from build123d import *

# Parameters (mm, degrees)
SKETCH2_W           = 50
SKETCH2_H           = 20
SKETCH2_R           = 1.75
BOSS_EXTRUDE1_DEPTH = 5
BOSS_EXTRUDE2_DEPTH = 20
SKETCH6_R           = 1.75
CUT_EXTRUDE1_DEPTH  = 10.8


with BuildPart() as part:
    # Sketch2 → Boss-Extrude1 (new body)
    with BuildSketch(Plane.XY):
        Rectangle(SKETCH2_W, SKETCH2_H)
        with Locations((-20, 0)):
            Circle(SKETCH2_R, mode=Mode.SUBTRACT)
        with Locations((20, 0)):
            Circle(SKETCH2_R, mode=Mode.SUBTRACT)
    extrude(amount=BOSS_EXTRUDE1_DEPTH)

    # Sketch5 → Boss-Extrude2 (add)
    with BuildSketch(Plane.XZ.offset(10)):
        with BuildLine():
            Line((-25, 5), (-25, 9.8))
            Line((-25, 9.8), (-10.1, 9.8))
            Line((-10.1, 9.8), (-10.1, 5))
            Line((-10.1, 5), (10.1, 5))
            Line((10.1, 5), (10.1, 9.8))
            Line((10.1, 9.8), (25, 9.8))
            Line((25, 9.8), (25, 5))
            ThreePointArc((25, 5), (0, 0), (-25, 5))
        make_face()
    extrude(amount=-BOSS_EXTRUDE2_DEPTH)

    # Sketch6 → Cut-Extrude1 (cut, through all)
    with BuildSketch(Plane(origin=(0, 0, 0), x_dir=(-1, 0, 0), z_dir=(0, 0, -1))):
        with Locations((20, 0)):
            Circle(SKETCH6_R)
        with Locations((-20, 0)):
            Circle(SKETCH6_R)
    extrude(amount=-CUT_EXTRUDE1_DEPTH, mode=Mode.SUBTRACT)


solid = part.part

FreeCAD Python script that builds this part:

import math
import FreeCAD as App
import Part
import Sketcher


def add_polygon(sketch, points):
    """Adds a closed chain of lines whose ends are joined by coincident constraints."""
    first, n = sketch.GeometryCount, len(points)
    for a, b in zip(points, points[1:] + points[:1]):
        sketch.addGeometry(Part.LineSegment(App.Vector(*a, 0), App.Vector(*b, 0)), False)
    for i in range(n):
        sketch.addConstraint(Sketcher.Constraint("Coincident", first + i, 2, first + (i + 1) % n, 1))

doc = App.newDocument("Part")
body = doc.addObject("PartDesign::Body", "Body")

# Sketch on XY plane
sketch1 = doc.addObject("Sketcher::SketchObject", "Sketch")
body.addObject(sketch1)
sketch1.AttachmentSupport = (doc.XY_Plane, [""])
sketch1.MapMode = "FlatFace"
add_polygon(sketch1, [(-25, 10), (-25, -10), (25, -10), (25, 10)])  # lines 0-3
sketch1.addGeometry(Part.Circle(App.Vector(-20, 0, 0), App.Vector(0, 0, 1), 1.8), False)  # 4
sketch1.addGeometry(Part.Circle(App.Vector(20, 0, 0), App.Vector(0, 0, 1), 1.8), False)  # 5
sketch1.addConstraint([
    Sketcher.Constraint("Vertical", 0),
    Sketcher.Constraint("Horizontal", 1),
    Sketcher.Constraint("Vertical", 2),
    Sketcher.Constraint("Horizontal", 3),
    Sketcher.Constraint("Equal", 4, 5),
    Sketcher.Constraint("Symmetric", 4, 3, 5, 3, -1, 1),
    Sketcher.Constraint("Symmetric", 0, 2, 2, 2, -1, 1),
    Sketcher.Constraint("PointOnObject", 4, 3, -1),
    Sketcher.Constraint("Diameter", 4, 3.5),
    Sketcher.Constraint("DistanceX", 1, 1, 1, 2, 50.0),
    Sketcher.Constraint("DistanceY", 0, 2, 0, 1, 20.0),
    Sketcher.Constraint("DistanceX", 4, 3, -1, 1, 20.0),
])
pad1 = doc.addObject("PartDesign::Pad", "Pad")
body.addObject(pad1)
pad1.Profile = sketch1
pad1.Length = 5

# Sketch on XZ plane
sketch2 = doc.addObject("Sketcher::SketchObject", "Sketch001")
body.addObject(sketch2)
sketch2.AttachmentSupport = (doc.XZ_Plane, [""])
sketch2.MapMode = "FlatFace"
sketch2.AttachmentOffset = App.Placement(App.Vector(0, 0, 10), App.Rotation())
sketch2.addGeometry([
    Part.LineSegment(App.Vector(-25, 9.8, 0), App.Vector(-25, 5, 0)),  # 0
    Part.ArcOfCircle(Part.Circle(App.Vector(0, 65, 0), App.Vector(0, 0, 1), 65), math.radians(-113), math.radians(-67)),  # 1
    Part.LineSegment(App.Vector(25, 5, 0), App.Vector(25, 9.8, 0)),  # 2
    Part.LineSegment(App.Vector(25, 9.8, 0), App.Vector(10.1, 9.8, 0)),  # 3
    Part.LineSegment(App.Vector(10.1, 9.8, 0), App.Vector(10.1, 5, 0)),  # 4
    Part.LineSegment(App.Vector(10.1, 5, 0), App.Vector(-10.1, 5, 0)),  # 5
    Part.LineSegment(App.Vector(-10.1, 5, 0), App.Vector(-10.1, 9.8, 0)),  # 6
    Part.LineSegment(App.Vector(-10.1, 9.8, 0), App.Vector(-25, 9.8, 0)),  # 7
], False)
sketch2.addConstraint([
    Sketcher.Constraint("Coincident", 0, 2, 1, 1),
    Sketcher.Constraint("Coincident", 1, 2, 2, 1),
    Sketcher.Constraint("Coincident", 2, 2, 3, 1),
    Sketcher.Constraint("Coincident", 3, 2, 4, 1),
    Sketcher.Constraint("Coincident", 4, 2, 5, 1),
    Sketcher.Constraint("Coincident", 5, 2, 6, 1),
    Sketcher.Constraint("Coincident", 6, 2, 7, 1),
    Sketcher.Constraint("Coincident", 7, 2, 0, 1),
    Sketcher.Constraint("Vertical", 0),
    Sketcher.Constraint("Vertical", 2),
    Sketcher.Constraint("Horizontal", 3),
    Sketcher.Constraint("Vertical", 4),
    Sketcher.Constraint("Horizontal", 5),
    Sketcher.Constraint("Vertical", 6),
    Sketcher.Constraint("Horizontal", 7),
    Sketcher.Constraint("Symmetric", 0, 2, 1, 2, -2),
    Sketcher.Constraint("Symmetric", 3, 2, 6, 2, -2),
    Sketcher.Constraint("Horizontal", 1, 2, 4, 2),
    Sketcher.Constraint("Radius", 1, 65.0),
    Sketcher.Constraint("DistanceX", 3, 2, 3, 1, 14.9),
    Sketcher.Constraint("DistanceX", 5, 2, 5, 1, 20.2),
    Sketcher.Constraint("DistanceY", 0, 2, 0, 1, 4.8),
    Sketcher.Constraint("DistanceY", -1, 1, 1, 3, 65.0),
])
pad2 = doc.addObject("PartDesign::Pad", "Pad001")
body.addObject(pad2)
pad2.Profile = sketch2
pad2.Length = 20
pad2.Reversed = True

# Sketch on XY plane
sketch3 = doc.addObject("Sketcher::SketchObject", "Sketch002")
body.addObject(sketch3)
sketch3.AttachmentSupport = (doc.XY_Plane, [""])
sketch3.MapMode = "FlatFace"
sketch3.addGeometry([
    Part.Circle(App.Vector(-20, 0, 0), App.Vector(0, 0, 1), 1.8),
    Part.Circle(App.Vector(20, 0, 0), App.Vector(0, 0, 1), 1.8),
], False)
sketch3.addConstraint([
    Sketcher.Constraint("Equal", 0, 1),
    Sketcher.Constraint("Symmetric", 0, 3, 1, 3, -1, 1),
    Sketcher.Constraint("PointOnObject", 0, 3, -1),
    Sketcher.Constraint("Diameter", 0, 3.5),
    Sketcher.Constraint("DistanceX", 0, 3, -1, 1, 20.0),
])
pocket1 = doc.addObject("PartDesign::Pocket", "Pocket")
body.addObject(pocket1)
pocket1.Profile = sketch3
pocket1.Type = "ThroughAll"
pocket1.Reversed = True

doc.recompute()
